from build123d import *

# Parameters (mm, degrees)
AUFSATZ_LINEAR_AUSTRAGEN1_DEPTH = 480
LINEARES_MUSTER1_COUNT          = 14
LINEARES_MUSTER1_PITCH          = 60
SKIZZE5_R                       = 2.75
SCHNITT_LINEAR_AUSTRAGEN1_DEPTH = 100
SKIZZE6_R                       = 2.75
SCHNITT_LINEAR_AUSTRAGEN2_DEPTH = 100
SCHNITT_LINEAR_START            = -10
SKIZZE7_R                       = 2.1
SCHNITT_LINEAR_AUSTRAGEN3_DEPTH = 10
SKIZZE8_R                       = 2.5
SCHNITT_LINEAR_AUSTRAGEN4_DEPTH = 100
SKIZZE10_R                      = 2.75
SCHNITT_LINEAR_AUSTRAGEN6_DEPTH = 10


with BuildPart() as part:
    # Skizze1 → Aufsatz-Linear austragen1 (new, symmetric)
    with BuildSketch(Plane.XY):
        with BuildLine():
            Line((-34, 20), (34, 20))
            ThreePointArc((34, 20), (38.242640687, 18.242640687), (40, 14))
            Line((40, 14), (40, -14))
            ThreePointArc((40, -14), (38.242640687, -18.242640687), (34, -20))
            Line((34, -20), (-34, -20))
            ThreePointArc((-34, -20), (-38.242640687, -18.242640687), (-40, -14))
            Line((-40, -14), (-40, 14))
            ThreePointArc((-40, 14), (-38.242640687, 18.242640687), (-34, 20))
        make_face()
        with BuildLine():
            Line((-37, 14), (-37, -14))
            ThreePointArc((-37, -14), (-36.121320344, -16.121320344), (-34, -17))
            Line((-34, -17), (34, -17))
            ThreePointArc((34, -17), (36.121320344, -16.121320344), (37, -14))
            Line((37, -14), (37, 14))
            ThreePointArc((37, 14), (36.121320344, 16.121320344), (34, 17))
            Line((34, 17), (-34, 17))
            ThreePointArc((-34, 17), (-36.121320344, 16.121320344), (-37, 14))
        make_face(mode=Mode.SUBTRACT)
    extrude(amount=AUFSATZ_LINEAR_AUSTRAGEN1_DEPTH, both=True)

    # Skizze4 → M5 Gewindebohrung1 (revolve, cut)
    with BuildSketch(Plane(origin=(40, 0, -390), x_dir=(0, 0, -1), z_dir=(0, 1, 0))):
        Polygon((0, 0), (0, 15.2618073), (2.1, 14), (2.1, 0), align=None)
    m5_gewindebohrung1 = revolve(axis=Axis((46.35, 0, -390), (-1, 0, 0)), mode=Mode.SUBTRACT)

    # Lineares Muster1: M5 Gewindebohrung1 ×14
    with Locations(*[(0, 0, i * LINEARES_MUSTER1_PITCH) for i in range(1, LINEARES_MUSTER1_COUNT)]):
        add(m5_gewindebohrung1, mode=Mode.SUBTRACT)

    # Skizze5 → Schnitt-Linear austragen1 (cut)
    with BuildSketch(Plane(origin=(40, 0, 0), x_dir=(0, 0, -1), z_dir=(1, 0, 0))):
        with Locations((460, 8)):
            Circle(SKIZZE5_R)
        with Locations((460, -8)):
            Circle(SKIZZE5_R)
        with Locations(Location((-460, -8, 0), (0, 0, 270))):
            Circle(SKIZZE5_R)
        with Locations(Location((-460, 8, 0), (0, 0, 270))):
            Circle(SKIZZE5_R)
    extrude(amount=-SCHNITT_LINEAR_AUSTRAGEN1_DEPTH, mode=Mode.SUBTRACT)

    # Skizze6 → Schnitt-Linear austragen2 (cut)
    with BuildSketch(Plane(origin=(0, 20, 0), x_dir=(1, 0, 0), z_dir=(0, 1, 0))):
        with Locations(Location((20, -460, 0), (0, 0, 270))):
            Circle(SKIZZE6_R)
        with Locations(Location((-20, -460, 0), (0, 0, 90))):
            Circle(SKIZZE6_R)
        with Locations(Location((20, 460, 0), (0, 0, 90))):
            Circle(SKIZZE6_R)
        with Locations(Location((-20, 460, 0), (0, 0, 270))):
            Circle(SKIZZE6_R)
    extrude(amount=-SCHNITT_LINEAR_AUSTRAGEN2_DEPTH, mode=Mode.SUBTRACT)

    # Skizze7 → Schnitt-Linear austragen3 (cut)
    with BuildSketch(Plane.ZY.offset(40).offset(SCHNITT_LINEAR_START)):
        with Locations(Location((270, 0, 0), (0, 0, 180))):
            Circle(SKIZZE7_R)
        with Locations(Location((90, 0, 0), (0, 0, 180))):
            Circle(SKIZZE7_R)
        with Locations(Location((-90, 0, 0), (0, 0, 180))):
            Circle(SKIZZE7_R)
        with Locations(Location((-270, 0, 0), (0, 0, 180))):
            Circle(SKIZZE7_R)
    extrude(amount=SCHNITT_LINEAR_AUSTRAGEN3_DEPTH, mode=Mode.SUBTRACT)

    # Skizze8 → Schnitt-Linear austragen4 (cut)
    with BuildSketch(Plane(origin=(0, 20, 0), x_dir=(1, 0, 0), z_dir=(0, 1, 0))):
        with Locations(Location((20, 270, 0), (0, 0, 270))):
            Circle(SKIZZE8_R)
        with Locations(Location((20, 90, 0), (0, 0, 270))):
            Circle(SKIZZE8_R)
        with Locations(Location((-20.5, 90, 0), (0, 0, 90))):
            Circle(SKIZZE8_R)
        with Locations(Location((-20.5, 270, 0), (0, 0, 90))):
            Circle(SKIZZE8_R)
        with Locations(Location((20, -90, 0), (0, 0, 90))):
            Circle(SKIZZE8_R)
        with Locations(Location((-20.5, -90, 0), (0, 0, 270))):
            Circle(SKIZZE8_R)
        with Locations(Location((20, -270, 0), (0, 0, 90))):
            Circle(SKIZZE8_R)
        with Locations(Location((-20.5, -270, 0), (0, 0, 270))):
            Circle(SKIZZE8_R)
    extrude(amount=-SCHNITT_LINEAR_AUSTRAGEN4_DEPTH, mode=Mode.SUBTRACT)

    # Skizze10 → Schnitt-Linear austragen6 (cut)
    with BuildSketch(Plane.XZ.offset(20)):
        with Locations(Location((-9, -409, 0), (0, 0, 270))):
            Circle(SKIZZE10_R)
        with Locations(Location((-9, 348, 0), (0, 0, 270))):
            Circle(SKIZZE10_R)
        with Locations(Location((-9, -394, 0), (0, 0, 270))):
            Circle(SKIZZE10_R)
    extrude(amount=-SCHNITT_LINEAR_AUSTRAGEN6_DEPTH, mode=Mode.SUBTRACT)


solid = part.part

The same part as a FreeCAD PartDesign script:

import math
import FreeCAD as App
import Part
import Sketcher
Q = App.Units.Quantity


def add_polygon(sketch, points):
    """Adds a closed chain of lines whose ends are joined by coincident constraints."""
    first, n = sketch.GeometryCount, len(points)
    for a, b in zip(points, points[1:] + points[:1]):
        sketch.addGeometry(Part.LineSegment(App.Vector(*a, 0), App.Vector(*b, 0)), False)
    for i in range(n):
        sketch.addConstraint(Sketcher.Constraint("Coincident", first + i, 2, first + (i + 1) % n, 1))

doc = App.newDocument("Part")
body = doc.addObject("PartDesign::Body", "Body")

# Sketch on XY plane
sketch1 = body.newObject("Sketcher::SketchObject", "Sketch")
sketch1.AttachmentSupport = (doc.getObject("XY_Plane"), [""])
sketch1.MapMode = "FlatFace"
sketch1.addGeometry([
    Part.LineSegment(App.Vector(34, 20, 0), App.Vector(-34, 20, 0)),  # 0
    Part.ArcOfCircle(Part.Circle(App.Vector(-34, 14, 0), App.Vector(0, 0, 1), 6), math.radians(90), math.radians(180)),  # 1
    Part.LineSegment(App.Vector(-40, 14, 0), App.Vector(-40, -14, 0)),  # 2
    Part.ArcOfCircle(Part.Circle(App.Vector(-34, -14, 0), App.Vector(0, 0, 1), 6), math.radians(180), math.radians(270)),  # 3
    Part.LineSegment(App.Vector(-34, -20, 0), App.Vector(34, -20, 0)),  # 4
    Part.ArcOfCircle(Part.Circle(App.Vector(34, -14, 0), App.Vector(0, 0, 1), 6), math.radians(-90), math.radians(0)),  # 5
    Part.LineSegment(App.Vector(40, -14, 0), App.Vector(40, 14, 0)),  # 6
    Part.ArcOfCircle(Part.Circle(App.Vector(34, 14, 0), App.Vector(0, 0, 1), 6), math.radians(0), math.radians(90)),  # 7
    Part.ArcOfCircle(Part.Circle(App.Vector(-34, 14, 0), App.Vector(0, 0, 1), 3), math.radians(90), math.radians(180)),  # 8
    Part.LineSegment(App.Vector(-34, 17, 0), App.Vector(34, 17, 0)),  # 9
    Part.ArcOfCircle(Part.Circle(App.Vector(34, 14, 0), App.Vector(0, 0, 1), 3), math.radians(0), math.radians(90)),  # 10
    Part.LineSegment(App.Vector(37, 14, 0), App.Vector(37, -14, 0)),  # 11
    Part.ArcOfCircle(Part.Circle(App.Vector(34, -14, 0), App.Vector(0, 0, 1), 3), math.radians(-90), math.radians(0)),  # 12
    Part.LineSegment(App.Vector(34, -17, 0), App.Vector(-34, -17, 0)),  # 13
    Part.ArcOfCircle(Part.Circle(App.Vector(-34, -14, 0), App.Vector(0, 0, 1), 3), math.radians(180), math.radians(270)),  # 14
    Part.LineSegment(App.Vector(-37, -14, 0), App.Vector(-37, 14, 0)),  # 15
], False)
sketch1.addConstraint([
    Sketcher.Constraint("Tangent", 0, 2, 1, 1),
    Sketcher.Constraint("Tangent", 1, 2, 2, 1),
    Sketcher.Constraint("Tangent", 2, 2, 3, 1),
    Sketcher.Constraint("Tangent", 3, 2, 4, 1),
    Sketcher.Constraint("Tangent", 4, 2, 5, 1),
    Sketcher.Constraint("Tangent", 5, 2, 6, 1),
    Sketcher.Constraint("Tangent", 6, 2, 7, 1),
    Sketcher.Constraint("Tangent", 7, 2, 0, 1),
    Sketcher.Constraint("Tangent", 8, 1, 9, 1),
    Sketcher.Constraint("Tangent", 9, 2, 10, 2),
    Sketcher.Constraint("Tangent", 10, 1, 11, 1),
    Sketcher.Constraint("Tangent", 11, 2, 12, 2),
    Sketcher.Constraint("Tangent", 12, 1, 13, 1),
    Sketcher.Constraint("Tangent", 13, 2, 14, 2),
    Sketcher.Constraint("Tangent", 14, 1, 15, 1),
    Sketcher.Constraint("Tangent", 15, 2, 8, 2),
    Sketcher.Constraint("Horizontal", 0),
    Sketcher.Constraint("Vertical", 2),
    Sketcher.Constraint("Horizontal", 4),
    Sketcher.Constraint("Vertical", 6),
    Sketcher.Constraint("Horizontal", 9),
    Sketcher.Constraint("Vertical", 11),
    Sketcher.Constraint("Horizontal", 13),
    Sketcher.Constraint("Vertical", 15),
    Sketcher.Constraint("Coincident", 8, 3, 1, 3),
    Sketcher.Constraint("Coincident", 10, 3, 7, 3),
    Sketcher.Constraint("Coincident", 12, 3, 5, 3),
    Sketcher.Constraint("Equal", 1, 3),
    Sketcher.Constraint("Equal", 3, 5),
    Sketcher.Constraint("Equal", 5, 7),
    Sketcher.Constraint("Equal", 12, 14),
    Sketcher.Constraint("Symmetric", 1, 3, 5, 3, -1, 1),
    Sketcher.Constraint("Radius", 1, 6.0),
    Sketcher.Constraint("Radius", 8, 3.0),
    Sketcher.Constraint("DistanceX", 0, 2, 0, 1, 68.0),
    Sketcher.Constraint("DistanceY", 2, 2, 2, 1, 28.0),
])
pad1 = body.newObject("PartDesign::Pad", "Pad")
pad1.Profile = sketch1
pad1.Length = 960
pad1.Midplane = True

# Sketch on XZ plane
sketch2 = body.newObject("Sketcher::SketchObject", "Sketch001")
sketch2.AttachmentSupport = (doc.getObject("XZ_Plane"), [""])
sketch2.MapMode = "FlatFace"
add_polygon(sketch2, [(24.738193, -390), (40, -390), (40, -392.1), (26, -392.1)])  # lines 0-3
sketch2.addGeometry(Part.LineSegment(App.Vector(40, -390, 0), App.Vector(24.738193, -390, 0)), True)  # axis
sketch2.addConstraint([
    Sketcher.Constraint("Horizontal", 0),
    Sketcher.Constraint("Vertical", 1),
    Sketcher.Constraint("Horizontal", 2),
    Sketcher.Constraint("Horizontal", 4),
    Sketcher.Constraint("Coincident", 4, 1, 0, 2),
    Sketcher.Constraint("Equal", 0, 4),
    Sketcher.Constraint("DistanceX", 2, 2, 2, 1, 14.0),
    Sketcher.Constraint("Angle", 3, Q("121 deg")),
    Sketcher.Constraint("DistanceY", 1, 2, 1, 1, 2.1),
    Sketcher.Constraint("DistanceX", -1, 1, 0, 2, 40.0),
    Sketcher.Constraint("DistanceY", 0, 2, -1, 1, 390.0),
])
groove = body.newObject("PartDesign::Groove", "Groove")
groove.Profile = sketch2
groove.ReferenceAxis = (sketch2, ["Axis0"])
groove.Angle = 360
doc.recompute()

linearpattern = body.newObject("PartDesign::LinearPattern", "LinearPattern")
linearpattern.Originals = [groove]
linearpattern.Direction = (doc.getObject("Z_Axis"), [""])
linearpattern.Mode = "offset"
linearpattern.Offset = 60
linearpattern.Occurrences = 14
body.Tip = linearpattern

# Sketch on YZ plane
sketch3 = body.newObject("Sketcher::SketchObject", "Sketch002")
sketch3.AttachmentSupport = (doc.getObject("YZ_Plane"), [""])
sketch3.MapMode = "FlatFace"
sketch3.AttachmentOffset = App.Placement(App.Vector(0, 0, 40), App.Rotation())
sketch3.addGeometry([
    Part.Circle(App.Vector(8, -460, 0), App.Vector(0, 0, 1), 2.75),
    Part.Circle(App.Vector(-8, -460, 0), App.Vector(0, 0, 1), 2.75),
    Part.Circle(App.Vector(-8, 460, 0), App.Vector(0, 0, 1), 2.75),
    Part.Circle(App.Vector(8, 460, 0), App.Vector(0, 0, 1), 2.75),
], False)
sketch3.addConstraint([
    Sketcher.Constraint("Equal", 0, 1),
    Sketcher.Constraint("Equal", 1, 2),
    Sketcher.Constraint("Equal", 2, 3),
    Sketcher.Constraint("Symmetric", 0, 3, 2, 3, -1, 1),
    Sketcher.Constraint("Symmetric", 1, 3, 3, 3, -1, 1),
    Sketcher.Constraint("Symmetric", 0, 3, 1, 3, -2),
    Sketcher.Constraint("Diameter", 0, 5.5),
    Sketcher.Constraint("DistanceX", -1, 1, 0, 3, 8.0),
    Sketcher.Constraint("DistanceY", 0, 3, -1, 1, 460.0),
])
pocket1 = body.newObject("PartDesign::Pocket", "Pocket")
pocket1.Profile = sketch3
pocket1.Length = 100

# Sketch on XZ plane
sketch4 = body.newObject("Sketcher::SketchObject", "Sketch003")
sketch4.AttachmentSupport = (doc.getObject("XZ_Plane"), [""])
sketch4.MapMode = "FlatFace"
sketch4.AttachmentOffset = App.Placement(App.Vector(0, 0, -20), App.Rotation())
sketch4.addGeometry([
    Part.Circle(App.Vector(20, 460, 0), App.Vector(0, 0, 1), 2.75),
    Part.Circle(App.Vector(-20, 460, 0), App.Vector(0, 0, 1), 2.75),
    Part.Circle(App.Vector(20, -460, 0), App.Vector(0, 0, 1), 2.75),
    Part.Circle(App.Vector(-20, -460, 0), App.Vector(0, 0, 1), 2.75),
], False)
sketch4.addConstraint([
    Sketcher.Constraint("Equal", 0, 1),
    Sketcher.Constraint("Equal", 1, 2),
    Sketcher.Constraint("Equal", 2, 3),
    Sketcher.Constraint("Symmetric", 1, 3, 2, 3, -1, 1),
    Sketcher.Constraint("Symmetric", 0, 3, 3, 3, -1, 1),
    Sketcher.Constraint("Symmetric", 0, 3, 1, 3, -2),
    Sketcher.Constraint("Diameter", 0, 5.5),
    Sketcher.Constraint("DistanceX", -1, 1, 0, 3, 20.0),
    Sketcher.Constraint("DistanceY", -1, 1, 0, 3, 460.0),
])
pocket2 = body.newObject("PartDesign::Pocket", "Pocket001")
pocket2.Profile = sketch4
pocket2.Length = 100
pocket2.Reversed = True

# Sketch on YZ plane
sketch5 = body.newObject("Sketcher::SketchObject", "Sketch004")
sketch5.AttachmentSupport = (doc.getObject("YZ_Plane"), [""])
sketch5.MapMode = "FlatFace"
sketch5.AttachmentOffset = App.Placement(App.Vector(0, 0, -30), App.Rotation())
sketch5.addGeometry([
    Part.Circle(App.Vector(0, 270, 0), App.Vector(0, 0, 1), 2.1),
    Part.Circle(App.Vector(0, 90, 0), App.Vector(0, 0, 1), 2.1),
    Part.Circle(App.Vector(0, -90, 0), App.Vector(0, 0, 1), 2.1),
    Part.Circle(App.Vector(0, -270, 0), App.Vector(0, 0, 1), 2.1),
], False)
sketch5.addConstraint([
    Sketcher.Constraint("Equal", 0, 1),
    Sketcher.Constraint("Equal", 1, 2),
    Sketcher.Constraint("Equal", 2, 3),
    Sketcher.Constraint("Symmetric", 1, 3, 2, 3, -1, 1),
    Sketcher.Constraint("Symmetric", 0, 3, 3, 3, -1, 1),
    Sketcher.Constraint("PointOnObject", 0, 3, -2),
    Sketcher.Constraint("PointOnObject", 1, 3, -2),
    Sketcher.Constraint("Diameter", 0, 4.2),
    Sketcher.Constraint("DistanceY", -1, 1, 0, 3, 270.0),
    Sketcher.Constraint("DistanceY", -1, 1, 1, 3, 90.0),
])
pocket3 = body.newObject("PartDesign::Pocket", "Pocket002")
pocket3.Profile = sketch5
pocket3.Length = 10

# Sketch on XZ plane
sketch6 = body.newObject("Sketcher::SketchObject", "Sketch005")
sketch6.AttachmentSupport = (doc.getObject("XZ_Plane"), [""])
sketch6.MapMode = "FlatFace"
sketch6.AttachmentOffset = App.Placement(App.Vector(0, 0, -20), App.Rotation())
sketch6.addGeometry([
    Part.Circle(App.Vector(20, -270, 0), App.Vector(0, 0, 1), 2.5),  # 0
    Part.Circle(App.Vector(20, -90, 0), App.Vector(0, 0, 1), 2.5),  # 1
    Part.Circle(App.Vector(-20.5, -90, 0), App.Vector(0, 0, 1), 2.5),  # 2
    Part.Circle(App.Vector(-20.5, -270, 0), App.Vector(0, 0, 1), 2.5),  # 3
    Part.Circle(App.Vector(20, 90, 0), App.Vector(0, 0, 1), 2.5),  # 4
    Part.Circle(App.Vector(-20.5, 90, 0), App.Vector(0, 0, 1), 2.5),  # 5
    Part.Circle(App.Vector(20, 270, 0), App.Vector(0, 0, 1), 2.5),  # 6
    Part.Circle(App.Vector(-20.5, 270, 0), App.Vector(0, 0, 1), 2.5),  # 7
], False)
sketch6.addConstraint([
    Sketcher.Constraint("Equal", 0, 1),
    Sketcher.Constraint("Equal", 1, 2),
    Sketcher.Constraint("Equal", 2, 3),
    Sketcher.Constraint("Equal", 3, 4),
    Sketcher.Constraint("Equal", 4, 5),
    Sketcher.Constraint("Equal", 5, 6),
    Sketcher.Constraint("Equal", 6, 7),
    Sketcher.Constraint("Symmetric", 1, 3, 4, 3, -1),
    Sketcher.Constraint("Symmetric", 2, 3, 5, 3, -1),
    Sketcher.Constraint("Symmetric", 0, 3, 6, 3, -1),
    Sketcher.Constraint("Symmetric", 3, 3, 7, 3, -1),
    Sketcher.Constraint("Horizontal", 1, 3, 2, 3),
    Sketcher.Constraint("Horizontal", 0, 3, 3, 3),
    Sketcher.Constraint("Vertical", 0, 3, 1, 3),
    Sketcher.Constraint("Vertical", 2, 3, 3, 3),
    Sketcher.Constraint("Diameter", 0, 5.0),
    Sketcher.Constraint("DistanceX", -1, 1, 0, 3, 20.0),
    Sketcher.Constraint("DistanceY", 0, 3, -1, 1, 270.0),
    Sketcher.Constraint("DistanceY", 1, 3, -1, 1, 90.0),
    Sketcher.Constraint("DistanceX", 2, 3, -1, 1, 20.5),
])
pocket4 = body.newObject("PartDesign::Pocket", "Pocket003")
pocket4.Profile = sketch6
pocket4.Length = 100
pocket4.Reversed = True

# Sketch on XZ plane
sketch7 = body.newObject("Sketcher::SketchObject", "Sketch006")
sketch7.AttachmentSupport = (doc.getObject("XZ_Plane"), [""])
sketch7.MapMode = "FlatFace"
sketch7.AttachmentOffset = App.Placement(App.Vector(0, 0, 20), App.Rotation())
sketch7.addGeometry([
    Part.Circle(App.Vector(-9, -409, 0), App.Vector(0, 0, 1), 2.75),
    Part.Circle(App.Vector(-9, 348, 0), App.Vector(0, 0, 1), 2.75),
    Part.Circle(App.Vector(-9, -394, 0), App.Vector(0, 0, 1), 2.75),
], False)
sketch7.addConstraint([
    Sketcher.Constraint("Equal", 0, 1),
    Sketcher.Constraint("Equal", 1, 2),
    Sketcher.Constraint("Vertical", 0, 3, 1, 3),
    Sketcher.Constraint("Vertical", 1, 3, 2, 3),
    Sketcher.Constraint("Diameter", 0, 5.5),
    Sketcher.Constraint("DistanceX", 0, 3, -1, 1, 9.0),
    Sketcher.Constraint("DistanceY", 0, 3, -1, 1, 409.0),
    Sketcher.Constraint("DistanceY", -1, 1, 1, 3, 348.0),
    Sketcher.Constraint("DistanceY", 2, 3, -1, 1, 394.0),
])
pocket5 = body.newObject("PartDesign::Pocket", "Pocket004")
pocket5.Profile = sketch7
pocket5.Length = 10

doc.recompute()
